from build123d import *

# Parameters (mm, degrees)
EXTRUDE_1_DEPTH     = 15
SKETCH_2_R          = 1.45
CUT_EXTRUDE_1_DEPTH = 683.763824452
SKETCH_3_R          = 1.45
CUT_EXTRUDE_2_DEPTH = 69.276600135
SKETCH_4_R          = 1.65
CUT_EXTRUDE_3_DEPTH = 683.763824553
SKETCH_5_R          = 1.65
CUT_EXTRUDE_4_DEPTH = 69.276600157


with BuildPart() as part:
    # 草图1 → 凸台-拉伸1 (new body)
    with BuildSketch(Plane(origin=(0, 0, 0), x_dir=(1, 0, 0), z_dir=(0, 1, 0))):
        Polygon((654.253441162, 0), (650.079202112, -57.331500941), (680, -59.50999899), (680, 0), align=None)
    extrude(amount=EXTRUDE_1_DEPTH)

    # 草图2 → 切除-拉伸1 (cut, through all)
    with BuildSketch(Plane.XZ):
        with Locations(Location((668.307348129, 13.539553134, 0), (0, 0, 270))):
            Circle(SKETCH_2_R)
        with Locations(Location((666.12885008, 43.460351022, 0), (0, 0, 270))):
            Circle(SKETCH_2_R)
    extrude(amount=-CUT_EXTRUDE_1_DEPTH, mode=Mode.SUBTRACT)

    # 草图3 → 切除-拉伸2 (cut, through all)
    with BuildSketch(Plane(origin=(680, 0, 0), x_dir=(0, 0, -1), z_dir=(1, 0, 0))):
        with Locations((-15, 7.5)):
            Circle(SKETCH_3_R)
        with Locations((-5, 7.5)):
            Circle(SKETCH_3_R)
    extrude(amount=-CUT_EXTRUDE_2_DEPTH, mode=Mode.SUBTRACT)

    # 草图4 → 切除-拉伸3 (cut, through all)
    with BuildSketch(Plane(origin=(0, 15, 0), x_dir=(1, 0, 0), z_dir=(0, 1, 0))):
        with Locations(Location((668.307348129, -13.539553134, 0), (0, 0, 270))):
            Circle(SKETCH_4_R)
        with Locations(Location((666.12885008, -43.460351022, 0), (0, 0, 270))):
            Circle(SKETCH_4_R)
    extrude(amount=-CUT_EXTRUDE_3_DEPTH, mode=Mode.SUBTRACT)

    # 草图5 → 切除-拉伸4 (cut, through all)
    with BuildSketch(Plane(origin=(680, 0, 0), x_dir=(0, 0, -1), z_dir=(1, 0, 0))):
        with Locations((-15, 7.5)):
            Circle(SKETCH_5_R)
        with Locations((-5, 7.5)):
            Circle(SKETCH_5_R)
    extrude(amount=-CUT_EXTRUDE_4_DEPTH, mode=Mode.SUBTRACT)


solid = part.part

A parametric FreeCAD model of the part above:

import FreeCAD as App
import Part
import Sketcher
from FreeCAD import Vector
Q = App.Units.Quantity

doc = App.newDocument("Part")
body = doc.addObject("PartDesign::Body", "Body")

sketch1 = body.newObject("Sketcher::SketchObject", "Sketch")
sketch1.AttachmentSupport = (doc.getObject("XZ_Plane"), [""])
sketch1.MapMode = "FlatFace"
sketch1.addGeometry([
    Part.LineSegment(Vector(654, 0, 0), Vector(650, 57, 0)),
    Part.LineSegment(Vector(650, 57, 0), Vector(680, 60, 0)),
    Part.LineSegment(Vector(680, 60, 0), Vector(680, 0, 0)),
    Part.LineSegment(Vector(680, 0, 0), Vector(654, 0, 0)),
], False)
sketch1.addConstraint([
    Sketcher.Constraint("Coincident", 0, 2, 1, 1),
    Sketcher.Constraint("Coincident", 1, 2, 2, 1),
    Sketcher.Constraint("Coincident", 2, 2, 3, 1),
    Sketcher.Constraint("Coincident", 3, 2, 0, 1),
    Sketcher.Constraint("Vertical", 2),
    Sketcher.Constraint("Horizontal", 3),
    Sketcher.Constraint("PointOnObject", 2, 2, -1),
    Sketcher.Constraint("Perpendicular", 0, 1),
    Sketcher.Constraint("Distance", 1, Q("30 mm")),
    Sketcher.Constraint("DistanceX", -1, 1, 1, 2, Q("680 mm")),
    Sketcher.Constraint("DistanceY", 2, 2, 2, 1, Q("59.509999 mm")),
    Sketcher.Constraint("DistanceX", 3, 2, 3, 1, Q("25.746559 mm")),
])
pad1 = body.newObject("PartDesign::Pad", "Pad")
pad1.Profile = sketch1
pad1.Length = 15
pad1.Reversed = True

sketch2 = body.newObject("Sketcher::SketchObject", "Sketch001")
sketch2.AttachmentSupport = (doc.getObject("XZ_Plane"), [""])
sketch2.MapMode = "FlatFace"
sketch2.addGeometry([
    Part.Circle(Vector(668.3, 13.5, 0), Vector(0, 0, 1), 1.4),
    Part.Circle(Vector(666.1, 43.5, 0), Vector(0, 0, 1), 1.4),
], False)
sketch2.addConstraint([
    Sketcher.Constraint("Equal", 0, 1),
    Sketcher.Constraint("Diameter", 0, Q("2.9 mm")),
    Sketcher.Constraint("DistanceX", 1, 3, 0, 3, Q("2.178498 mm")),
    Sketcher.Constraint("DistanceX", -1, 1, 0, 3, Q("668.307348 mm")),
    Sketcher.Constraint("DistanceY", -1, 1, 1, 3, Q("43.460351 mm")),
    Sketcher.Constraint("DistanceY", -1, 1, 0, 3, Q("13.539553 mm")),
])
pocket1 = body.newObject("PartDesign::Pocket", "Pocket")
pocket1.Profile = sketch2
pocket1.Type = "ThroughAll"

sketch3 = body.newObject("Sketcher::SketchObject", "Sketch002")
sketch3.AttachmentSupport = (doc.getObject("YZ_Plane"), [""])
sketch3.MapMode = "FlatFace"
sketch3.AttachmentOffset = App.Placement(Vector(0, 0, 680), App.Rotation())
sketch3.addGeometry([
    Part.Circle(Vector(7.5, 15, 0), Vector(0, 0, 1), 1.4),
    Part.Circle(Vector(7.5, 5, 0), Vector(0, 0, 1), 1.4),
], False)
sketch3.addConstraint([
    Sketcher.Constraint("Equal", 0, 1),
    Sketcher.Constraint("Vertical", 0, 3, 1, 3),
    Sketcher.Constraint("Diameter", 0, Q("2.9 mm")),
    Sketcher.Constraint("DistanceY", -1, 1, 0, 3, Q("15 mm")),
    Sketcher.Constraint("DistanceY", -1, 1, 1, 3, Q("5 mm")),
    Sketcher.Constraint("DistanceX", -1, 1, 0, 3, Q("7.5 mm")),
])
pocket2 = body.newObject("PartDesign::Pocket", "Pocket001")
pocket2.Profile = sketch3
pocket2.Type = "ThroughAll"

sketch4 = body.newObject("Sketcher::SketchObject", "Sketch003")
sketch4.AttachmentSupport = (doc.getObject("XZ_Plane"), [""])
sketch4.MapMode = "FlatFace"
sketch4.AttachmentOffset = App.Placement(Vector(0, 0, -15), App.Rotation())
sketch4.addGeometry([
    Part.Circle(Vector(668.3, 13.5, 0), Vector(0, 0, 1), 1.6),
    Part.Circle(Vector(666.1, 43.5, 0), Vector(0, 0, 1), 1.6),
], False)
sketch4.addConstraint([
    Sketcher.Constraint("Equal", 0, 1),
    Sketcher.Constraint("Diameter", 0, Q("3.3 mm")),
    Sketcher.Constraint("DistanceX", 1, 3, 0, 3, Q("2.178498 mm")),
    Sketcher.Constraint("DistanceX", -1, 1, 0, 3, Q("668.307348 mm")),
    Sketcher.Constraint("DistanceY", -1, 1, 1, 3, Q("43.460351 mm")),
    Sketcher.Constraint("DistanceY", -1, 1, 0, 3, Q("13.539553 mm")),
])
pocket3 = body.newObject("PartDesign::Pocket", "Pocket002")
pocket3.Profile = sketch4
pocket3.Type = "ThroughAll"
pocket3.Reversed = True

sketch5 = body.newObject("Sketcher::SketchObject", "Sketch004")
sketch5.AttachmentSupport = (doc.getObject("YZ_Plane"), [""])
sketch5.MapMode = "FlatFace"
sketch5.AttachmentOffset = App.Placement(Vector(0, 0, 680), App.Rotation())
sketch5.addGeometry([
    Part.Circle(Vector(7.5, 15, 0), Vector(0, 0, 1), 1.6),
    Part.Circle(Vector(7.5, 5, 0), Vector(0, 0, 1), 1.6),
], False)
sketch5.addConstraint([
    Sketcher.Constraint("Equal", 0, 1),
    Sketcher.Constraint("Vertical", 0, 3, 1, 3),
    Sketcher.Constraint("Diameter", 0, Q("3.3 mm")),
    Sketcher.Constraint("DistanceY", -1, 1, 0, 3, Q("15 mm")),
    Sketcher.Constraint("DistanceY", -1, 1, 1, 3, Q("5 mm")),
    Sketcher.Constraint("DistanceX", -1, 1, 0, 3, Q("7.5 mm")),
])
pocket4 = body.newObject("PartDesign::Pocket", "Pocket003")
pocket4.Profile = sketch5
pocket4.Type = "ThroughAll"

doc.recompute()
